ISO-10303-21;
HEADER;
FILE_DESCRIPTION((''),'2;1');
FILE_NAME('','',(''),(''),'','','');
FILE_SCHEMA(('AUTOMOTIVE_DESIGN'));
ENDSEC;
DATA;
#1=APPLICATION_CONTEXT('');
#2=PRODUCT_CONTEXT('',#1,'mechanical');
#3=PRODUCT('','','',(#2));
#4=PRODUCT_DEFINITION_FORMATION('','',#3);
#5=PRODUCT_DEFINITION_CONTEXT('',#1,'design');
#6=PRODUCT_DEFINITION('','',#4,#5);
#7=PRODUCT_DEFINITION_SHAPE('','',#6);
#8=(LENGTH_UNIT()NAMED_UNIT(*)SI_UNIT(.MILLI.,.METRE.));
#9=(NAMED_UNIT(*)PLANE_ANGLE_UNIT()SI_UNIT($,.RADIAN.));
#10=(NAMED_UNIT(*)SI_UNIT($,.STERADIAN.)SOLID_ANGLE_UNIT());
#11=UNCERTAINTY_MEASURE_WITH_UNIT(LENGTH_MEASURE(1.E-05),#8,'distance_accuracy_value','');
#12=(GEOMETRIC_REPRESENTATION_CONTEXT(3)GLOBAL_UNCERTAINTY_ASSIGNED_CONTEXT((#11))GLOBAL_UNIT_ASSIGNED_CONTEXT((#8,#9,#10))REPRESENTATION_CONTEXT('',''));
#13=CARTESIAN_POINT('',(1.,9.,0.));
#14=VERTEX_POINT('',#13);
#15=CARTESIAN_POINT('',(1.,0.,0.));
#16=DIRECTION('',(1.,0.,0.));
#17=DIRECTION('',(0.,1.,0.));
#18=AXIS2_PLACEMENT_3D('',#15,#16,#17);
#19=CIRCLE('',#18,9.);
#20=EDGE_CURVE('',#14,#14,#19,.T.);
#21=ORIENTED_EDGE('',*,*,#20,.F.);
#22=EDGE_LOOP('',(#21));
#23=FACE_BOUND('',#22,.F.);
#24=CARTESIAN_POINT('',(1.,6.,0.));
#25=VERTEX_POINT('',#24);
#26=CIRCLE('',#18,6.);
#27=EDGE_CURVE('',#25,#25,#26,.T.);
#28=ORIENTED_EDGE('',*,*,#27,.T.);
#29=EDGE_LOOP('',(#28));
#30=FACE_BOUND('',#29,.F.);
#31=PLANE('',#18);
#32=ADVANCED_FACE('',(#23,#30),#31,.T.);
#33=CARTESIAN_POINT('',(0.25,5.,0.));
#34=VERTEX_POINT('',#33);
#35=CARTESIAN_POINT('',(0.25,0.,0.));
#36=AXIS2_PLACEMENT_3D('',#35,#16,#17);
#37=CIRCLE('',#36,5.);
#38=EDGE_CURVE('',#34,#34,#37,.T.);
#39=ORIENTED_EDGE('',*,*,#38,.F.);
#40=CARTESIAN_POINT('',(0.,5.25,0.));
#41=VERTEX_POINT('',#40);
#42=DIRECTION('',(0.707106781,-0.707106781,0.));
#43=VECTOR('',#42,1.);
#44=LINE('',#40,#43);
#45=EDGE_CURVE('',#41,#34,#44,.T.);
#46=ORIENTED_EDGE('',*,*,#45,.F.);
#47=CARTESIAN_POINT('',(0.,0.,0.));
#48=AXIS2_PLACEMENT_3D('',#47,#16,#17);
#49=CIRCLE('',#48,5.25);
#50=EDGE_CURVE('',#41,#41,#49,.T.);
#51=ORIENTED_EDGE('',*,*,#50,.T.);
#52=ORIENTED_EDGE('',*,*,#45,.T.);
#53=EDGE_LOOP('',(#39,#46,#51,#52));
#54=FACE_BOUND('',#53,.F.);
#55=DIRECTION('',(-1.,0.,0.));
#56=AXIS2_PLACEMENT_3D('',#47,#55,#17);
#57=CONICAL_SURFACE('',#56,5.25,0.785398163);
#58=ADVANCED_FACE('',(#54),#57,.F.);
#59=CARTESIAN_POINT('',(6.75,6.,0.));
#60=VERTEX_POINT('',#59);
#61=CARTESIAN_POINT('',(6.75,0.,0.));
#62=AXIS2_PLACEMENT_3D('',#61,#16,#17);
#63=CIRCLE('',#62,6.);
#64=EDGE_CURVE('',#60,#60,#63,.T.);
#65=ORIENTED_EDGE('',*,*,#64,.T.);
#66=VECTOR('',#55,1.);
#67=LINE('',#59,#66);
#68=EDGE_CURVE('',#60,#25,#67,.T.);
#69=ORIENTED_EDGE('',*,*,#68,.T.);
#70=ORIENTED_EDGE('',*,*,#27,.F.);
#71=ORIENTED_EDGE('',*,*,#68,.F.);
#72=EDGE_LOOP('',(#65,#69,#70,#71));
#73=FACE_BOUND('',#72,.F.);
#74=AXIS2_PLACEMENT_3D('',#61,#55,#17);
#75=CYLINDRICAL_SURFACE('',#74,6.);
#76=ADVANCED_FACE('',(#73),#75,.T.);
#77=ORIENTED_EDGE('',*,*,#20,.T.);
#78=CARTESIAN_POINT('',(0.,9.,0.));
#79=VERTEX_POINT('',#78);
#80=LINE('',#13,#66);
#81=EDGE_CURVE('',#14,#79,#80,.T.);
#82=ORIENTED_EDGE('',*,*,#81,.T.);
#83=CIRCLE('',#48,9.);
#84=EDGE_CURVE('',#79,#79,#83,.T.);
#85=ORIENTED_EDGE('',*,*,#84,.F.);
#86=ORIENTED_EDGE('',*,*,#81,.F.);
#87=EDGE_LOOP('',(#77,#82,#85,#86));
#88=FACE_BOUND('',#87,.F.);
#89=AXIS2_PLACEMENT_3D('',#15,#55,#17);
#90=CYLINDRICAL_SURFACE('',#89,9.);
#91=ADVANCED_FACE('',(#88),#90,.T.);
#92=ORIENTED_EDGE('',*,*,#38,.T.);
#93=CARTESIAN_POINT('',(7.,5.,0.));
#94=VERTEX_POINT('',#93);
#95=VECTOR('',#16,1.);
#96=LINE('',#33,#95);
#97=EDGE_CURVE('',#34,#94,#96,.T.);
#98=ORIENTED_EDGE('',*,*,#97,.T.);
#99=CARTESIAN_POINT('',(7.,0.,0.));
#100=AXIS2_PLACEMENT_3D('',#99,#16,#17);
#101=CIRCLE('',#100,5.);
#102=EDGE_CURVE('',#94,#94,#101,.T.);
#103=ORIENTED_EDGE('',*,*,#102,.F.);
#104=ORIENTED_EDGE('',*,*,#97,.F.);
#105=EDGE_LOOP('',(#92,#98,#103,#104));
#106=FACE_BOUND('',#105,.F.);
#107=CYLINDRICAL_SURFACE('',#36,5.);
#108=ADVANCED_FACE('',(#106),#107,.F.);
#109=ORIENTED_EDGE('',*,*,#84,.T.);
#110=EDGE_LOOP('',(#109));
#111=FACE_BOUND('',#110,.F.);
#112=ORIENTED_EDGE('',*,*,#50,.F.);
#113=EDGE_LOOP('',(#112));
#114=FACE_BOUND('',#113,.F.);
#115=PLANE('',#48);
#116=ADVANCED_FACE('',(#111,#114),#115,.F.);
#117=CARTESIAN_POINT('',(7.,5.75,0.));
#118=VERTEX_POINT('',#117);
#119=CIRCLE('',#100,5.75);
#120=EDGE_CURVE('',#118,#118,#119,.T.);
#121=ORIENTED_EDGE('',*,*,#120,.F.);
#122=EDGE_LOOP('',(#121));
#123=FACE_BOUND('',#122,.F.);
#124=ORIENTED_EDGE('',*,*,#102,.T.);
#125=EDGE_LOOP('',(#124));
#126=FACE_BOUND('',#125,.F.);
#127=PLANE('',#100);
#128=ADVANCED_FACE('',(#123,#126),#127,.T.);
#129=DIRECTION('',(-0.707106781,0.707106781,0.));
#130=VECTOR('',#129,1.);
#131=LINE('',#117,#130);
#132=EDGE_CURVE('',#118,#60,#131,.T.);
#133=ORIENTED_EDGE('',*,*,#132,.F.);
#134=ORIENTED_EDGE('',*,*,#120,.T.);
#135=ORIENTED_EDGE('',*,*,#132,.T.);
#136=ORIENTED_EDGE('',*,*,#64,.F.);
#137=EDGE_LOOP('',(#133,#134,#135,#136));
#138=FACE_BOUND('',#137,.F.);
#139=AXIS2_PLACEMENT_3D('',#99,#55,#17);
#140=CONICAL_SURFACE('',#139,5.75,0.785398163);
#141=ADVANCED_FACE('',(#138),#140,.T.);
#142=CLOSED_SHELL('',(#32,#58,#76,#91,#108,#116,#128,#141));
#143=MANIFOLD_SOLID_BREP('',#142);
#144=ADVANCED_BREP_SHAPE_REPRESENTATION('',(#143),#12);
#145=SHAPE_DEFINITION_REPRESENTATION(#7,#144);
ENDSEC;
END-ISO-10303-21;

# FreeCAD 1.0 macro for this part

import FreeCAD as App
import Part
import Sketcher

V = App.Vector
Q = App.Units.Quantity


def add_polygon(sketch, points):
    """Adds a closed chain of lines whose ends are joined by coincident constraints."""
    first, n = sketch.GeometryCount, len(points)
    for a, b in zip(points, points[1:] + points[:1]):
        sketch.addGeometry(Part.LineSegment(App.Vector(*a, 0), App.Vector(*b, 0)), False)
    for i in range(n):
        sketch.addConstraint(Sketcher.Constraint("Coincident", first + i, 2, first + (i + 1) % n, 1))

doc = App.newDocument("Part")
params = doc.addObject("Spreadsheet::Sheet", "Params")
for row, (alias, value) in enumerate([
    ("sketch1_width", "1 mm"),
    ("sketch1_height", "3 mm"),
    ("sketch1_width2", "6.75 mm"),
    ("revolution_angle", "360 deg"),
], start=1):
    params.set(f"A{row}", alias)
    params.set(f"B{row}", "=" + value)
    params.setAlias(f"B{row}", alias)

body = doc.addObject("PartDesign::Body", "Body")

# Sketch on XY plane
sketch1 = body.newObject("Sketcher::SketchObject", "Sketch")
sketch1.AttachmentSupport = (doc.getObject("XY_Plane"), [""])
sketch1.MapMode = "FlatFace"
add_polygon(sketch1, [(1, 9), (0, 9), (0, 5.25), (0.25, 5), (7, 5), (7, 5.75), (6.75, 6), (1, 6)])  # lines 0-7
sketch1.addConstraint(Sketcher.Constraint("Horizontal", 0))
sketch1.addConstraint(Sketcher.Constraint("Vertical", 1))
sketch1.addConstraint(Sketcher.Constraint("Horizontal", 3))
sketch1.addConstraint(Sketcher.Constraint("Vertical", 4))
sketch1.addConstraint(Sketcher.Constraint("Horizontal", 6))
sketch1.addConstraint(Sketcher.Constraint("Vertical", 7))
sketch1.addConstraint(Sketcher.Constraint("PointOnObject", 0, 2, -2))
sketch1.addConstraint(Sketcher.Constraint("Parallel", 2, 5))
sketch1.addConstraint(Sketcher.Constraint("Equal", 2, 5))
sketch1.addConstraint(Sketcher.Constraint("DistanceX", 0, 2, 0, 1, 1.0))
sketch1.addConstraint(Sketcher.Constraint("DistanceY", 7, 1, 7, 2, 3.0))
sketch1.addConstraint(Sketcher.Constraint("Angle", 2, Q("-45 deg")))
sketch1.addConstraint(Sketcher.Constraint("DistanceY", -1, 1, 0, 2, 9.0))
sketch1.addConstraint(Sketcher.Constraint("DistanceY", -1, 1, 2, 2, 5.0))
sketch1.addConstraint(Sketcher.Constraint("DistanceX", -1, 1, 3, 2, 7.0))
sketch1.addConstraint(Sketcher.Constraint("DistanceX", 3, 1, 3, 2, 6.75))
sketch1.setExpression("Constraints[17]", "Params.sketch1_width")
sketch1.setExpression("Constraints[18]", "Params.sketch1_height")
sketch1.setExpression("Constraints[23]", "Params.sketch1_width2")
revolution = body.newObject("PartDesign::Revolution", "Revolution")
revolution.Profile = sketch1
revolution.ReferenceAxis = (sketch1, ["H_Axis"])
revolution.setExpression("Angle", "Params.revolution_angle")

doc.recompute()
